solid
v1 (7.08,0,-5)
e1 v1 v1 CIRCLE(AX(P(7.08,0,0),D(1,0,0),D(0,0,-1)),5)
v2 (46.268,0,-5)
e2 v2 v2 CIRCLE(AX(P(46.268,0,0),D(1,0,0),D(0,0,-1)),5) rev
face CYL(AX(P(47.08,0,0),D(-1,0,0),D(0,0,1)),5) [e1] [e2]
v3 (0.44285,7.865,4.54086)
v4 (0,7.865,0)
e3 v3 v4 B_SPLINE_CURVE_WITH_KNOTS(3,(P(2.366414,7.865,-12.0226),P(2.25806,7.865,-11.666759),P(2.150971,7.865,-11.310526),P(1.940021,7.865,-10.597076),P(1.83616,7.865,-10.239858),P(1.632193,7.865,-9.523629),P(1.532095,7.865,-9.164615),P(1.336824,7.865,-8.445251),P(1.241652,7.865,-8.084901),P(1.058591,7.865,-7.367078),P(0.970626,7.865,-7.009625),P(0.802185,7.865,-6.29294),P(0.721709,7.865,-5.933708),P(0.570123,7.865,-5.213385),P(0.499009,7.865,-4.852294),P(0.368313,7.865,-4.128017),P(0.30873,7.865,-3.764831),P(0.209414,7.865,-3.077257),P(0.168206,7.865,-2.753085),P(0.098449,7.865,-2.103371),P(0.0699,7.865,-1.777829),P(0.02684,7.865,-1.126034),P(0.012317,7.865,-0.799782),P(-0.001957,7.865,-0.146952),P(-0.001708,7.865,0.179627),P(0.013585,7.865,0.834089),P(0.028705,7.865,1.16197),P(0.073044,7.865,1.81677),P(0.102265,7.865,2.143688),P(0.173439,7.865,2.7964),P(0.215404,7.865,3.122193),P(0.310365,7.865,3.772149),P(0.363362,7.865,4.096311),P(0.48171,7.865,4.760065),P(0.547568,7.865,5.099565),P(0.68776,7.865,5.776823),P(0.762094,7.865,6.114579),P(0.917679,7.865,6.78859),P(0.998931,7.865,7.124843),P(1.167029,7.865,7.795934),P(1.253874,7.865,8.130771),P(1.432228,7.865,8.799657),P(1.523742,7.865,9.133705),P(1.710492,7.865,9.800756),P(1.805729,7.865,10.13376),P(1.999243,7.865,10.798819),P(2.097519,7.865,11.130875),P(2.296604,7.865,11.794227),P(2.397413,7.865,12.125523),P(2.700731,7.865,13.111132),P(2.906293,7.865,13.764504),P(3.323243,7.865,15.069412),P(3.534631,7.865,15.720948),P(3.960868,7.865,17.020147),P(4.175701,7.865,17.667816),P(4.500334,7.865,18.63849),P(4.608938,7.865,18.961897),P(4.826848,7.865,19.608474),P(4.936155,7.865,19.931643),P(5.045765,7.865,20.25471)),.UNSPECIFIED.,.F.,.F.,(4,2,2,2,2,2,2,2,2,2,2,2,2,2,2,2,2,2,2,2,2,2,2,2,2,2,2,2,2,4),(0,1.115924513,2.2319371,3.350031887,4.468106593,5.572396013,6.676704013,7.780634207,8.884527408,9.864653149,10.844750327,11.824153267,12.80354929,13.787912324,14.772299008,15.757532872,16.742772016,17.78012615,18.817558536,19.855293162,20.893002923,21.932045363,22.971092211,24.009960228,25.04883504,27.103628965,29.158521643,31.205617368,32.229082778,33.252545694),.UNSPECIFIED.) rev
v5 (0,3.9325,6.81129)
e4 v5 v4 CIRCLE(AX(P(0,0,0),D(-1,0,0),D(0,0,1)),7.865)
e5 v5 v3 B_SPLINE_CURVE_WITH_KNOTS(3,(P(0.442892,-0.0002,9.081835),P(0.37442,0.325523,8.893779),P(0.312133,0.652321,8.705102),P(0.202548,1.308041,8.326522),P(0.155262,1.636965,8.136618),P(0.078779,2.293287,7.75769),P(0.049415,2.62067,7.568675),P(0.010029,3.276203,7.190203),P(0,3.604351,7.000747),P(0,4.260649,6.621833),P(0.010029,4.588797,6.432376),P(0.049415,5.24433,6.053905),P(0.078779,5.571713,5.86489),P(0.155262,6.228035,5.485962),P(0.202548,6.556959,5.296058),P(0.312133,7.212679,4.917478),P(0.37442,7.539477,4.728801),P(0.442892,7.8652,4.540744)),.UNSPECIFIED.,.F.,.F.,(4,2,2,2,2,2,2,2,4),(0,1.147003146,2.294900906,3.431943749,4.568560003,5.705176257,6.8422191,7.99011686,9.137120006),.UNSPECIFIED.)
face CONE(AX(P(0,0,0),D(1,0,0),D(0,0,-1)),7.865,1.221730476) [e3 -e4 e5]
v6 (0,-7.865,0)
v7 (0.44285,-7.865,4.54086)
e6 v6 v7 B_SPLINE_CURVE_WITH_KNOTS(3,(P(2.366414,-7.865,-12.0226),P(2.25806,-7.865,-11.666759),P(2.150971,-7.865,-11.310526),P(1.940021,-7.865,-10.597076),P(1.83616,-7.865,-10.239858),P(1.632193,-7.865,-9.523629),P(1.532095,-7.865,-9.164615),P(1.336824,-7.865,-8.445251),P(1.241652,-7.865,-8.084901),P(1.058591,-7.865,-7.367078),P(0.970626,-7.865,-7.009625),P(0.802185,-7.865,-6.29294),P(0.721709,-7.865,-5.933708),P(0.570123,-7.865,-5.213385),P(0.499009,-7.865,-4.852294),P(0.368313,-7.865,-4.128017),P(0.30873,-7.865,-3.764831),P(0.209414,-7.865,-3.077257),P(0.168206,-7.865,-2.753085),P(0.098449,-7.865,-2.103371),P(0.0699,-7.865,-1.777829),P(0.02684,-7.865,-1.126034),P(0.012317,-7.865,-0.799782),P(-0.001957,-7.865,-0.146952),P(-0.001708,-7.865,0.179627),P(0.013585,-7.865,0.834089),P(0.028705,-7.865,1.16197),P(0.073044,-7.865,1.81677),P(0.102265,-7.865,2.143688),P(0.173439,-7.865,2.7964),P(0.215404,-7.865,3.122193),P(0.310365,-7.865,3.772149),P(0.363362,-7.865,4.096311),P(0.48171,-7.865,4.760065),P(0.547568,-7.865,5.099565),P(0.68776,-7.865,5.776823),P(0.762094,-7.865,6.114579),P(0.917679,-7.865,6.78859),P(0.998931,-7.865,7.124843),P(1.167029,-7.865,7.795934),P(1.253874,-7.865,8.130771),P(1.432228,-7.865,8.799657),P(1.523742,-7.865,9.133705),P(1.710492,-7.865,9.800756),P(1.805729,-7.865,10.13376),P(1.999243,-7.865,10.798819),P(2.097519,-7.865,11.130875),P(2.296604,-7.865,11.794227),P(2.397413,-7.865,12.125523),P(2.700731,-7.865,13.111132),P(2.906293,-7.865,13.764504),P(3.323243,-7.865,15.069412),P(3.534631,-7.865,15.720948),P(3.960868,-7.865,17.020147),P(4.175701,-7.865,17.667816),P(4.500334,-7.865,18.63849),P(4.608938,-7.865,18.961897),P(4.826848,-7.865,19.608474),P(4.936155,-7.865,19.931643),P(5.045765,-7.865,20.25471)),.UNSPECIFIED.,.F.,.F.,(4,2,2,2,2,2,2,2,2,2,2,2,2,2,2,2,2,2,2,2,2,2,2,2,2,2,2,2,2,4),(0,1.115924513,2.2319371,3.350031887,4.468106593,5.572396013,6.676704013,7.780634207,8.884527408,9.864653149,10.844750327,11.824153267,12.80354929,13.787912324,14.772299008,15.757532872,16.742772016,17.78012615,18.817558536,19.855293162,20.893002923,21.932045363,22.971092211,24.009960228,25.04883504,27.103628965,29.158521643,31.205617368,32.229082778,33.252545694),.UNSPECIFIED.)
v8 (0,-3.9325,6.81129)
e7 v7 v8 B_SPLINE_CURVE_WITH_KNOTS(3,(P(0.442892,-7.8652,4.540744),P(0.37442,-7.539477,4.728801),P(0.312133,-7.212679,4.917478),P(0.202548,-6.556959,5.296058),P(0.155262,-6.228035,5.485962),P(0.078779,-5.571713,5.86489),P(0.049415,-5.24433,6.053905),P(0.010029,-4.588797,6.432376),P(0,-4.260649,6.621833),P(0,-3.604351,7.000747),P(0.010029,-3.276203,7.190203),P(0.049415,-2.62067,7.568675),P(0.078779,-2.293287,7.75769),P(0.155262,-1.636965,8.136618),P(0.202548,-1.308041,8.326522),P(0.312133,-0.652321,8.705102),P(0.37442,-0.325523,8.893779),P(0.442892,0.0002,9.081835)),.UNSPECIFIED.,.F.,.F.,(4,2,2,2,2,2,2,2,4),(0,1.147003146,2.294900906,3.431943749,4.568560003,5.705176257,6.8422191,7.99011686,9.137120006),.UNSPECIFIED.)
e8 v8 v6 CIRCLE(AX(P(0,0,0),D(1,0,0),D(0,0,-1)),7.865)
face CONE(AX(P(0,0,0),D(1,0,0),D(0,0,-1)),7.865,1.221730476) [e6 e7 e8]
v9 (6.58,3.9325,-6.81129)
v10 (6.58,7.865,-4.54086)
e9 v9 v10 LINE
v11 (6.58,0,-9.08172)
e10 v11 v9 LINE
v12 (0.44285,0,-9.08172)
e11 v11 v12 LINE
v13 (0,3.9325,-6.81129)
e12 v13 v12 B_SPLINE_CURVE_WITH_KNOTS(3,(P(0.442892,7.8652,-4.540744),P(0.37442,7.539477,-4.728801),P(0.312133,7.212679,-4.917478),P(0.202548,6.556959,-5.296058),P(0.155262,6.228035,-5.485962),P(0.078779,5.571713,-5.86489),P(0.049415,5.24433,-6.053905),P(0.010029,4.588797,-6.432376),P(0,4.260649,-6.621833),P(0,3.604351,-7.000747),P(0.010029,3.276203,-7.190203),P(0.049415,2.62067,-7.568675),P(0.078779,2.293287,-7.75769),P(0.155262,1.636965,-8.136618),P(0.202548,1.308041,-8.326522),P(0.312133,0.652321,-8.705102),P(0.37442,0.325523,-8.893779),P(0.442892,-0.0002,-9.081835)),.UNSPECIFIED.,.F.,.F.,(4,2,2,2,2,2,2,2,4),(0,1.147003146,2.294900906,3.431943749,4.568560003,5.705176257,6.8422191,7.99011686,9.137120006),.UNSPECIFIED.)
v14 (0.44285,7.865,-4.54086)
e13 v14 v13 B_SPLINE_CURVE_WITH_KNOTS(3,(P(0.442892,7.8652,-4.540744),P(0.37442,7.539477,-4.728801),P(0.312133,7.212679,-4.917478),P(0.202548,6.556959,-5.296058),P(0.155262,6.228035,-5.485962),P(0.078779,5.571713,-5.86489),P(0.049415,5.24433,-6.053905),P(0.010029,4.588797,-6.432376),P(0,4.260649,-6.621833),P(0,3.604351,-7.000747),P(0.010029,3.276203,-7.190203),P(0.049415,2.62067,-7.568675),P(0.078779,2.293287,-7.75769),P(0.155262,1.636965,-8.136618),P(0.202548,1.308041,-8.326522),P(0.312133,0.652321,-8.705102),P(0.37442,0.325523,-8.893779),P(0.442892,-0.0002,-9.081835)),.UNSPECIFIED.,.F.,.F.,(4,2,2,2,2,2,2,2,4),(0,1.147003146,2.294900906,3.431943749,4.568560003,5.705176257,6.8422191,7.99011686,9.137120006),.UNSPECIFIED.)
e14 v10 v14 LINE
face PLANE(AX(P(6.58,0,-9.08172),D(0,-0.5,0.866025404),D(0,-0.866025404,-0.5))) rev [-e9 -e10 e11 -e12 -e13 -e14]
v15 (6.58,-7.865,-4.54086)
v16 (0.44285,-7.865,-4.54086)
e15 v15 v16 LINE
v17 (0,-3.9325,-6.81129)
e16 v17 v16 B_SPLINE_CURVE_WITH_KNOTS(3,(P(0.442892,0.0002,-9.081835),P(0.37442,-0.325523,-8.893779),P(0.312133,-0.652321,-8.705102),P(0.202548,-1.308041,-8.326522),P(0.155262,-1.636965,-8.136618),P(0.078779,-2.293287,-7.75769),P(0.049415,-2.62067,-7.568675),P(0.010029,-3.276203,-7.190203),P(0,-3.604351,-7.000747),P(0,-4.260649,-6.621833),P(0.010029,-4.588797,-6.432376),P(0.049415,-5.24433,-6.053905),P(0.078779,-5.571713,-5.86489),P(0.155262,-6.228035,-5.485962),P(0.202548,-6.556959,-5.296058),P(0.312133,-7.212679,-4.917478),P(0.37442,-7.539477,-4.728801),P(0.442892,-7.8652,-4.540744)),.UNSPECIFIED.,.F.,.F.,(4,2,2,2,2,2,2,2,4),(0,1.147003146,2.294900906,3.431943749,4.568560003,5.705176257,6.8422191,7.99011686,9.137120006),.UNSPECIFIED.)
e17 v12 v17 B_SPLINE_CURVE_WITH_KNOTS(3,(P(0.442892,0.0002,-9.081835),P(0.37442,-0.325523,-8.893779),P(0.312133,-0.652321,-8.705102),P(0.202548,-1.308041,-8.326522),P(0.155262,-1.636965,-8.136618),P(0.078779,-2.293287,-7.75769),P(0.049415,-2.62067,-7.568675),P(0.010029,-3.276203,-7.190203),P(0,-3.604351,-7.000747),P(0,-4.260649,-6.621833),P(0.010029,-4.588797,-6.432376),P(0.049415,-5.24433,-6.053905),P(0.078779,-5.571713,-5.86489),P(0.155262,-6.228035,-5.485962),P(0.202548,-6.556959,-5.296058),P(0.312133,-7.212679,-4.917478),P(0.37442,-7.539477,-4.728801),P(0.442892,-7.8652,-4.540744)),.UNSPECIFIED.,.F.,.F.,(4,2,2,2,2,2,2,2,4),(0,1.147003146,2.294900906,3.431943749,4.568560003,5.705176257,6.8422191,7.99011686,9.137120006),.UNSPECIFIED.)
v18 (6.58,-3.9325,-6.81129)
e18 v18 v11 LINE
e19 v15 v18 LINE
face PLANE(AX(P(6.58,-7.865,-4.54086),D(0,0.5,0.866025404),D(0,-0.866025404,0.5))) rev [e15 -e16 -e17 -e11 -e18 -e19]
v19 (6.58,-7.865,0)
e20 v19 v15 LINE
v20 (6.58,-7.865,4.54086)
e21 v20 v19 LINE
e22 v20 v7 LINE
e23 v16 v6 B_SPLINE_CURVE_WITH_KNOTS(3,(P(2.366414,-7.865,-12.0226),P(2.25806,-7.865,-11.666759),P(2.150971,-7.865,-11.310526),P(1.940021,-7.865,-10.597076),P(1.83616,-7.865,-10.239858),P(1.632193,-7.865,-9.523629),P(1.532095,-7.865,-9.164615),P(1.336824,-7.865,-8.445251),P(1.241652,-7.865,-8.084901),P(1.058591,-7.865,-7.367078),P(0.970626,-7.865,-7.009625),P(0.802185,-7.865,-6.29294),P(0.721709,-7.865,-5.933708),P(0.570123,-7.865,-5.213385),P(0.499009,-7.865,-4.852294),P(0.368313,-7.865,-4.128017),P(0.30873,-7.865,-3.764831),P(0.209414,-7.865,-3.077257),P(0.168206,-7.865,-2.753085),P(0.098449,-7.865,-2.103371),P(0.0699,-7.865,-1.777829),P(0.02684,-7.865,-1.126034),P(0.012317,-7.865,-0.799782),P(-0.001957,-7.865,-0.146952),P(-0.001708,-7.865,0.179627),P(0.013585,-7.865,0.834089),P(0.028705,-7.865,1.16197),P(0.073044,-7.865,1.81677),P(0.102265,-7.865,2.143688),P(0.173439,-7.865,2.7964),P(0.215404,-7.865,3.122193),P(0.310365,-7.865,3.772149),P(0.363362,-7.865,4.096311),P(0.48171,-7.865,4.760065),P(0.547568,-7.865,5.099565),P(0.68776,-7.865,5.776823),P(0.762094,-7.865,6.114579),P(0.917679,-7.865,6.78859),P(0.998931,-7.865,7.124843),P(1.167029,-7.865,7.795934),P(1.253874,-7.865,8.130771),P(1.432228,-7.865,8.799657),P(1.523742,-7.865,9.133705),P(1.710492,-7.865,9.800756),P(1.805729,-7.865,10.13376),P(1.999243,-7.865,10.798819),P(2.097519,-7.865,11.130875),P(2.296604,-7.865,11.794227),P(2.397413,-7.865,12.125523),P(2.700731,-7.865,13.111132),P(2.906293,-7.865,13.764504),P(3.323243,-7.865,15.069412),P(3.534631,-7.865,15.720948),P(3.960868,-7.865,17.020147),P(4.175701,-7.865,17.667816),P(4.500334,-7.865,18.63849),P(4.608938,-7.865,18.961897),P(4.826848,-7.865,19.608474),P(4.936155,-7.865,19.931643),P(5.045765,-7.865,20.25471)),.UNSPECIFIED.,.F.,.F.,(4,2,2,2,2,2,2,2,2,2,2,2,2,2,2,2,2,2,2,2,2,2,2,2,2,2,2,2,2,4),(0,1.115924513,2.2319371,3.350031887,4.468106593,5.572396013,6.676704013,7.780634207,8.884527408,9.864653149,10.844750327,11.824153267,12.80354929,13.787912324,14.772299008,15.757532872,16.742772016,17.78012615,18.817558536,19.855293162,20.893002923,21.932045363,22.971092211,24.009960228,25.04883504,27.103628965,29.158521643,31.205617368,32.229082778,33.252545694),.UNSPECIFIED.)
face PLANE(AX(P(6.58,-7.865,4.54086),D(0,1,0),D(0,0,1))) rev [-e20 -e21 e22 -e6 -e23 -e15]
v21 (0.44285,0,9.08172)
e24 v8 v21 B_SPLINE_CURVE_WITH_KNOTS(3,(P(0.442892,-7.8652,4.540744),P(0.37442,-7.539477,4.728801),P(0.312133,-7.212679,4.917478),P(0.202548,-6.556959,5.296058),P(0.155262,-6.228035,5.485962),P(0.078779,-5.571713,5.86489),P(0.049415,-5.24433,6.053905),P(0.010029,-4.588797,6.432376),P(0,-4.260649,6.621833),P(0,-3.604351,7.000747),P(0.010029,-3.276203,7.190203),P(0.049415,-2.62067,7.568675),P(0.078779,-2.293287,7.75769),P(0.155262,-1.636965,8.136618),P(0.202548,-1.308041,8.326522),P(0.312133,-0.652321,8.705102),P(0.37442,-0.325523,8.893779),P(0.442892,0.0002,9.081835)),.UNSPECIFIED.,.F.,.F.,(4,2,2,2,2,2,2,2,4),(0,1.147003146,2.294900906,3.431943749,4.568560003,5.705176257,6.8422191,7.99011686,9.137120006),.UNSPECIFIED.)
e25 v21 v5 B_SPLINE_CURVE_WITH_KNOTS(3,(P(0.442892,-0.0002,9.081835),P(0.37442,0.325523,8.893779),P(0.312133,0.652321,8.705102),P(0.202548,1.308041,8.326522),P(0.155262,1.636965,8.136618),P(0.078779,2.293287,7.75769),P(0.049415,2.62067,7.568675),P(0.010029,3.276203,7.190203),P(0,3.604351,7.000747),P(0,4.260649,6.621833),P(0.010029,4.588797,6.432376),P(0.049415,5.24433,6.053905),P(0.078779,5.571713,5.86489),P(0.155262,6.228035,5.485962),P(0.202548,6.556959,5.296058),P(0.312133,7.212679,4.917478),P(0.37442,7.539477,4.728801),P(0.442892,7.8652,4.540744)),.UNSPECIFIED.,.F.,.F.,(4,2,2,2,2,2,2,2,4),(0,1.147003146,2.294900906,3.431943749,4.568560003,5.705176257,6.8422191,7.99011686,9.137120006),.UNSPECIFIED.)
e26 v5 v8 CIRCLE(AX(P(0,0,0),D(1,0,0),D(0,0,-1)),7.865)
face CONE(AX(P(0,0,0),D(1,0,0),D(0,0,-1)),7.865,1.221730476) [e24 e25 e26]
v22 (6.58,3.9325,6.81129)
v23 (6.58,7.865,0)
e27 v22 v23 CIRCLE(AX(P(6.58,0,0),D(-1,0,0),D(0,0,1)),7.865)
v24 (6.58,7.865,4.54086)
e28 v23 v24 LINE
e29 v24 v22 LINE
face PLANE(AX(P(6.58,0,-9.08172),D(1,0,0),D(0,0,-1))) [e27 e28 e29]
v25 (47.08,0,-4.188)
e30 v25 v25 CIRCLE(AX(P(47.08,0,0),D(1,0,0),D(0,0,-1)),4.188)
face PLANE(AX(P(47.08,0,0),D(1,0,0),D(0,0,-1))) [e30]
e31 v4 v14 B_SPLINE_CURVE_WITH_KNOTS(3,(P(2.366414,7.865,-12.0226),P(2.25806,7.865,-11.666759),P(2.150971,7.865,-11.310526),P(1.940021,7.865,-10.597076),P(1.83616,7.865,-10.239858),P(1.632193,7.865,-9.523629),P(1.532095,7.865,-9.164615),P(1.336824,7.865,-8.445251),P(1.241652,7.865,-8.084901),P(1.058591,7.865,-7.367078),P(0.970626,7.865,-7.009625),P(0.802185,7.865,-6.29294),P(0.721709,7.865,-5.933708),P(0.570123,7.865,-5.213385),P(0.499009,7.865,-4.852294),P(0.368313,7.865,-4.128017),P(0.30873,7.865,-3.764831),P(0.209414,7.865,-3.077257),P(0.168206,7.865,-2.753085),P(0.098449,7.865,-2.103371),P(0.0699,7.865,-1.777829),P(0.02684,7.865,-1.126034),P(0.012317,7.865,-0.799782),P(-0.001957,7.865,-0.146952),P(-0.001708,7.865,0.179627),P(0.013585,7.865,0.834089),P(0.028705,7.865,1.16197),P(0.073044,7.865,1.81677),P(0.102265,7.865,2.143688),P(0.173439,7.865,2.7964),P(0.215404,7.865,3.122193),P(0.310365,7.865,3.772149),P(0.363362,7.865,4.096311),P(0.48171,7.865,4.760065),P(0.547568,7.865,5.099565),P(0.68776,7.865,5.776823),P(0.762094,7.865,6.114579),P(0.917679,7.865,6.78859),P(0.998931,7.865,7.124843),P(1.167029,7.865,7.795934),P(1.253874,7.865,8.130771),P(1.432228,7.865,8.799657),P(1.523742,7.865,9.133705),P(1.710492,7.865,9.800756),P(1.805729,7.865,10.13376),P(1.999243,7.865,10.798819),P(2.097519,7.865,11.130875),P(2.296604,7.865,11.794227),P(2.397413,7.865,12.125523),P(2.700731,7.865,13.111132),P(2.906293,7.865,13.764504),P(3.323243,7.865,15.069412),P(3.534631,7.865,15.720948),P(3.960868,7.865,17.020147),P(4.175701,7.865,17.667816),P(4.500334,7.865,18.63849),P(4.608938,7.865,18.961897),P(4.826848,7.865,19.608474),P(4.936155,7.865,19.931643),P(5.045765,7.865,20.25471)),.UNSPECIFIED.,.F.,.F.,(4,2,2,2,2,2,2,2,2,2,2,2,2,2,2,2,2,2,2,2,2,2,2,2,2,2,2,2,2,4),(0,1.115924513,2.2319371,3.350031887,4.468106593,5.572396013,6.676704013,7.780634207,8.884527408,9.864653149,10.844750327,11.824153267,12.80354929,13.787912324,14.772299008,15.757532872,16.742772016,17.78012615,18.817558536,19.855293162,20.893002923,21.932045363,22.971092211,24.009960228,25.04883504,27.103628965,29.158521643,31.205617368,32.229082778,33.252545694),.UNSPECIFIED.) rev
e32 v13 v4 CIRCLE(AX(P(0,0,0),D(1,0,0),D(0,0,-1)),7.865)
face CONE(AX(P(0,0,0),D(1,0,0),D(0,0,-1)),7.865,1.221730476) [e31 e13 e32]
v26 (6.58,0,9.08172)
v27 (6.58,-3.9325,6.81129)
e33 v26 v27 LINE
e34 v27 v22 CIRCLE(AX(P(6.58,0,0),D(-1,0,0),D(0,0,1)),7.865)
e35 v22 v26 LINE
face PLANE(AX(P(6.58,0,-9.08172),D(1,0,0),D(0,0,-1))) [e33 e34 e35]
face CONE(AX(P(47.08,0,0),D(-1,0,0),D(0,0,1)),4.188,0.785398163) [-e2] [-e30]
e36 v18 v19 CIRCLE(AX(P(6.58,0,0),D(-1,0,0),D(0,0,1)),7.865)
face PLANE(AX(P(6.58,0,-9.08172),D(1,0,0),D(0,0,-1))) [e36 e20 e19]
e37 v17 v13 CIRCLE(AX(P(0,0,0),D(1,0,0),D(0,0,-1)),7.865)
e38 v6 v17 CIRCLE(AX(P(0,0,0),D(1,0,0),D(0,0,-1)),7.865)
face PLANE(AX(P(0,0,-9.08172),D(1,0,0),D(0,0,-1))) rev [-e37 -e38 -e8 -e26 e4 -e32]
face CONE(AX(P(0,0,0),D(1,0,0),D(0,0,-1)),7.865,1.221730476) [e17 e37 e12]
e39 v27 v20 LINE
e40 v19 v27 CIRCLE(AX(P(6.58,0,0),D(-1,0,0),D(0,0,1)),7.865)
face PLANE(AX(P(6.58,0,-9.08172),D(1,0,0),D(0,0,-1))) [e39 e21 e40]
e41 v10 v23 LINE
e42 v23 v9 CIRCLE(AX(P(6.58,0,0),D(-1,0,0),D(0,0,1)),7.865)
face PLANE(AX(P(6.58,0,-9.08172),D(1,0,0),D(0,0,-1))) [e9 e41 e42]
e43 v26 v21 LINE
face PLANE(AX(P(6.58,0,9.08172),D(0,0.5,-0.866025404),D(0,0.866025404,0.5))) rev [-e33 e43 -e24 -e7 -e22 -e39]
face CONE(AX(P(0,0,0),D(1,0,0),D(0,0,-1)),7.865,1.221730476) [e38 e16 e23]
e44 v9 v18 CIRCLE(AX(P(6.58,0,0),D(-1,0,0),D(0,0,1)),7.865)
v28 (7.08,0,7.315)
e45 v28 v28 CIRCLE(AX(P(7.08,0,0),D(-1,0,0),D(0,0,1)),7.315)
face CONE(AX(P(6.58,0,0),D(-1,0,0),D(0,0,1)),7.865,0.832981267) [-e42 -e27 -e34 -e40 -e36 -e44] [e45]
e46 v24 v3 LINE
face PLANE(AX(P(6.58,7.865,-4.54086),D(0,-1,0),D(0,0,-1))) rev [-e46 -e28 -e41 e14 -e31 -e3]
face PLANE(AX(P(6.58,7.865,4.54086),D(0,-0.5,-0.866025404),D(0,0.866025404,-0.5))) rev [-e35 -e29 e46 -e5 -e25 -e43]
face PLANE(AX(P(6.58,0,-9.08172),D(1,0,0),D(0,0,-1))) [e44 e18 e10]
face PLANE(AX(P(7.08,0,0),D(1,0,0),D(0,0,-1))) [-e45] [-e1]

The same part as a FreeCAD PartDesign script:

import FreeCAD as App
import Part
import Sketcher
Q = App.Units.Quantity


def edges_at(feature, points):
    """Names of the edges that pass closest to the given points."""
    edges = feature.Shape.Edges
    near = lambda p: min(range(len(edges)), key=lambda i: edges[i].distToShape(Part.Vertex(*p))[0])
    return sorted({f"Edge{near(p) + 1}" for p in points})

doc = App.newDocument("Part")
body = doc.addObject("PartDesign::Body", "Body")

# Sketch on YZ plane
sketch1 = doc.addObject("Sketcher::SketchObject", "Sketch")
body.addObject(sketch1)
sketch1.AttachmentSupport = (doc.YZ_Plane, [""])
sketch1.MapMode = "FlatFace"
sketch1.addGeometry([
    Part.LineSegment(App.Vector(0, -9, 0), App.Vector(8, -5, 0)),  # 0
    Part.LineSegment(App.Vector(8, -5, 0), App.Vector(8, 5, 0)),  # 1
    Part.LineSegment(App.Vector(8, 5, 0), App.Vector(0, 9, 0)),  # 2
    Part.LineSegment(App.Vector(0, 9, 0), App.Vector(-8, 5, 0)),  # 3
    Part.LineSegment(App.Vector(-8, 5, 0), App.Vector(-8, -5, 0)),  # 4
    Part.LineSegment(App.Vector(-8, -5, 0), App.Vector(0, -9, 0)),  # 5
], False)
sketch1.addConstraint([
    Sketcher.Constraint("Coincident", 0, 2, 1, 1),
    Sketcher.Constraint("Coincident", 1, 2, 2, 1),
    Sketcher.Constraint("Coincident", 2, 2, 3, 1),
    Sketcher.Constraint("Coincident", 3, 2, 4, 1),
    Sketcher.Constraint("Coincident", 4, 2, 5, 1),
    Sketcher.Constraint("Coincident", 5, 2, 0, 1),
    Sketcher.Constraint("Vertical", 1),
    Sketcher.Constraint("Vertical", 4),
    Sketcher.Constraint("Symmetric", 0, 2, 3, 2, -1, 1),
    Sketcher.Constraint("Symmetric", 2, 2, 5, 2, -1, 1),
    Sketcher.Constraint("PointOnObject", 2, 2, -2),
    Sketcher.Constraint("Parallel", 2, 5),
    Sketcher.Constraint("Horizontal", 1, 2, 3, 2),
    Sketcher.Constraint("Angle", 0, Q("30 deg")),
    Sketcher.Constraint("DistanceX", 3, 2, 1, 2, 15.73),
    Sketcher.Constraint("DistanceY", 1, 1, 1, 2, 9.08172),
])
pad1 = doc.addObject("PartDesign::Pad", "Pad")
body.addObject(pad1)
pad1.Profile = sketch1
pad1.Length = 6.58

# Sketch on XZ plane
sketch2 = doc.addObject("Sketcher::SketchObject", "Sketch001")
body.addObject(sketch2)
sketch2.AttachmentSupport = (doc.XZ_Plane, [""])
sketch2.MapMode = "FlatFace"
sketch2.addGeometry([
    Part.LineSegment(App.Vector(0, -9.08, 0), App.Vector(0, -7.87, 0)),
    Part.LineSegment(App.Vector(0, -7.87, 0), App.Vector(0.44, -9.08, 0)),
    Part.LineSegment(App.Vector(0.44, -9.08, 0), App.Vector(0, -9.08, 0)),
], False)
sketch2.addConstraint([
    Sketcher.Constraint("Coincident", 0, 2, 1, 1),
    Sketcher.Constraint("Coincident", 1, 2, 2, 1),
    Sketcher.Constraint("Coincident", 2, 2, 0, 1),
    Sketcher.Constraint("Vertical", 0),
    Sketcher.Constraint("Horizontal", 2),
    Sketcher.Constraint("PointOnObject", 0, 2, -2),
    Sketcher.Constraint("Angle", 1, Q("-70 deg")),
    Sketcher.Constraint("DistanceY", 0, 2, -1, 1, 7.865),
    Sketcher.Constraint("DistanceX", 2, 2, 2, 1, 0.44285),
])
groove = doc.addObject("PartDesign::Groove", "Groove")
body.addObject(groove)
groove.Profile = sketch2
groove.ReferenceAxis = (sketch2, ["H_Axis"])
groove.Angle = 360

# Sketch on XY plane
sketch3 = doc.addObject("Sketcher::SketchObject", "Sketch002")
body.addObject(sketch3)
sketch3.AttachmentSupport = (doc.XY_Plane, [""])
sketch3.MapMode = "FlatFace"
sketch3.addGeometry([
    Part.LineSegment(App.Vector(7.1, 0, 0), App.Vector(6.6, 0, 0)),
    Part.LineSegment(App.Vector(6.6, 0, 0), App.Vector(6.6, -7.9, 0)),
    Part.LineSegment(App.Vector(6.6, -7.9, 0), App.Vector(7.1, -7.3, 0)),
    Part.LineSegment(App.Vector(7.1, -7.3, 0), App.Vector(7.1, 0, 0)),
], False)
sketch3.addConstraint([
    Sketcher.Constraint("Coincident", 0, 2, 1, 1),
    Sketcher.Constraint("Coincident", 1, 2, 2, 1),
    Sketcher.Constraint("Coincident", 2, 2, 3, 1),
    Sketcher.Constraint("Coincident", 3, 2, 0, 1),
    Sketcher.Constraint("Horizontal", 0),
    Sketcher.Constraint("Vertical", 1),
    Sketcher.Constraint("Vertical", 3),
    Sketcher.Constraint("PointOnObject", 0, 2, -1),
    Sketcher.Constraint("DistanceX", 0, 2, 0, 1, 0.5),
    Sketcher.Constraint("DistanceY", 1, 2, 1, 1, 7.865),
    Sketcher.Constraint("DistanceY", 3, 1, 3, 2, 7.315),
    Sketcher.Constraint("DistanceX", -1, 1, 0, 2, 6.58),
])
revolution = doc.addObject("PartDesign::Revolution", "Revolution")
body.addObject(revolution)
revolution.Profile = sketch3
revolution.ReferenceAxis = (sketch3, ["H_Axis"])
revolution.Angle = 360

# Sketch on YZ plane
sketch4 = doc.addObject("Sketcher::SketchObject", "Sketch003")
body.addObject(sketch4)
sketch4.AttachmentSupport = (doc.YZ_Plane, [""])
sketch4.MapMode = "FlatFace"
sketch4.AttachmentOffset = App.Placement(App.Vector(0, 0, 7.08), App.Rotation())
sketch4.addGeometry(Part.Circle(App.Vector(0, 0, 0), App.Vector(0, 0, 1), 5), False)
sketch4.addConstraint([
    Sketcher.Constraint("Coincident", 0, 3, -1, 1),
    Sketcher.Constraint("Diameter", 0, 10.0),
])
pad2 = doc.addObject("PartDesign::Pad", "Pad001")
body.addObject(pad2)
pad2.Profile = sketch4
pad2.Length = 40
doc.recompute()

chamfer = doc.addObject("PartDesign::Chamfer", "Chamfer")
body.addObject(chamfer)
chamfer.Base = (pad2, edges_at(pad2, [(47.08, 0, 5)]))
chamfer.Size = 0.812

doc.recompute()
